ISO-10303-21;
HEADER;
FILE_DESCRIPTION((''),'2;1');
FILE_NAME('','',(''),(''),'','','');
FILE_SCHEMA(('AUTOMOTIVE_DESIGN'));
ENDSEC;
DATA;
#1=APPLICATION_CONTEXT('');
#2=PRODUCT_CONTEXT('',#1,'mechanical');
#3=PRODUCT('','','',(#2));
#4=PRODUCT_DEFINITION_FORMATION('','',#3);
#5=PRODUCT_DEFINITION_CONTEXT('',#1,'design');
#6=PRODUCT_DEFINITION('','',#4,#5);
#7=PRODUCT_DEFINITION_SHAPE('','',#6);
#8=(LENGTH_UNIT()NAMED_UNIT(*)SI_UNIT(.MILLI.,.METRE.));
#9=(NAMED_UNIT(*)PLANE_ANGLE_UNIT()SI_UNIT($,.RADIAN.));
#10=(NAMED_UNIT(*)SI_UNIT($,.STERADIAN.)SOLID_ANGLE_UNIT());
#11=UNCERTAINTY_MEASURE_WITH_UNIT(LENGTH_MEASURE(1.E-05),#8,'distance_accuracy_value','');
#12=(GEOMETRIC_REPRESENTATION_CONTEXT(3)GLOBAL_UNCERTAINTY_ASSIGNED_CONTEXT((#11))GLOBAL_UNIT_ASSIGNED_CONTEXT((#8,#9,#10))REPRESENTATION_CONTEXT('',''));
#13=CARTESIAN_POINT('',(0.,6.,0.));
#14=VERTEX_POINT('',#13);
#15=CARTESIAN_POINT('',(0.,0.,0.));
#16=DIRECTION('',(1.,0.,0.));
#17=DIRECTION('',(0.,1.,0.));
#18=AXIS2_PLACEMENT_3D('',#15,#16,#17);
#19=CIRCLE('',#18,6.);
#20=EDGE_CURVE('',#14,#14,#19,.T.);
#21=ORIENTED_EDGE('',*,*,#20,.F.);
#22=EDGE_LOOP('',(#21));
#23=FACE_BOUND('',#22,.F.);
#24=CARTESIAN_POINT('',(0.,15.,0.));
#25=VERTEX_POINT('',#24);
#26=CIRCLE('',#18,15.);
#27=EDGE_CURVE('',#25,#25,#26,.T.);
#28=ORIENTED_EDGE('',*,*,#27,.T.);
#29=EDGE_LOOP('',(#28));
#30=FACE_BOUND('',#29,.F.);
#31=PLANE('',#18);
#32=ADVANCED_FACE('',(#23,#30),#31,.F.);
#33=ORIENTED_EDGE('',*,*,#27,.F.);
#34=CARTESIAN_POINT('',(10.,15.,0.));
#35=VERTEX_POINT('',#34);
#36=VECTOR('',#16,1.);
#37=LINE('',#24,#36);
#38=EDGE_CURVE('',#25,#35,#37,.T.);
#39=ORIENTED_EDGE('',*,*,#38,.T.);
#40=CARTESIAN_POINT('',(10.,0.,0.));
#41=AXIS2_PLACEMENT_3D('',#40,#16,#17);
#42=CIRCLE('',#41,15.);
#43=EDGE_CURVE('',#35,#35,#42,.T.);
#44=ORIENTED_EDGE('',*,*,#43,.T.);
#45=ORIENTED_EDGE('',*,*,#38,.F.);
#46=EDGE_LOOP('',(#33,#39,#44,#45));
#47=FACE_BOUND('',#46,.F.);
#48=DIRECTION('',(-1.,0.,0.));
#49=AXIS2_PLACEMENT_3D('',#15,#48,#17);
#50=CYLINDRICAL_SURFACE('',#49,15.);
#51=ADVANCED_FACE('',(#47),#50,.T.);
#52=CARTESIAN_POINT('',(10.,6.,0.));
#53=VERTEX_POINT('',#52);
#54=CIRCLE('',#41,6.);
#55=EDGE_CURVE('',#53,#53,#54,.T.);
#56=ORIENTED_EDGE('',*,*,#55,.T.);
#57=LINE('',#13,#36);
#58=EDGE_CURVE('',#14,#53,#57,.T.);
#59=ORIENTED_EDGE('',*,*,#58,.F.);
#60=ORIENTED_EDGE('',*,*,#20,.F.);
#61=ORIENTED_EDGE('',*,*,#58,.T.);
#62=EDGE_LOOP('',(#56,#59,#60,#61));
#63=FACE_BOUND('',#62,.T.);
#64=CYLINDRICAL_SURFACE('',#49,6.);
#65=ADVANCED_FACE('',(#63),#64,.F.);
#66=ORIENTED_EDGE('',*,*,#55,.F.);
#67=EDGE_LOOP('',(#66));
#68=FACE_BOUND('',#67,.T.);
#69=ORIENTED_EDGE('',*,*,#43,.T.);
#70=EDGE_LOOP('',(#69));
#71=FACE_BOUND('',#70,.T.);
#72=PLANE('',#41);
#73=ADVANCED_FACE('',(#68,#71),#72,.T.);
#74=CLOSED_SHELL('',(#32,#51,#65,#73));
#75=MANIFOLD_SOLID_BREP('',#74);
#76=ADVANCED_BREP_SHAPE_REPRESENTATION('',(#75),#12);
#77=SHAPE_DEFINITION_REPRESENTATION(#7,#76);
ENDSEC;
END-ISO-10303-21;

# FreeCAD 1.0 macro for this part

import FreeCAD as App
import Part
import Sketcher
from FreeCAD import Vector

doc = App.newDocument("Part")
body = doc.addObject("PartDesign::Body", "Body")

sketch1 = body.newObject("Sketcher::SketchObject", "Sketch")
sketch1.AttachmentSupport = (doc.getObject("YZ_Plane"), [""])
sketch1.MapMode = "FlatFace"
sketch1.addGeometry([
    Part.Circle(Vector(0, 0, 0), Vector(0, 0, 1), 15),
    Part.Circle(Vector(0, 0, 0), Vector(0, 0, 1), 6),
], False)
sketch1.addConstraint([
    Sketcher.Constraint("Coincident", 0, 3, -1, 1),
    Sketcher.Constraint("Coincident", 1, 3, -1, 1),
    Sketcher.Constraint("Diameter", 0, 30.0),
    Sketcher.Constraint("Diameter", 1, 12.0),
])
pad1 = body.newObject("PartDesign::Pad", "Pad")
pad1.Profile = sketch1
pad1.Length = 10

doc.recompute()
